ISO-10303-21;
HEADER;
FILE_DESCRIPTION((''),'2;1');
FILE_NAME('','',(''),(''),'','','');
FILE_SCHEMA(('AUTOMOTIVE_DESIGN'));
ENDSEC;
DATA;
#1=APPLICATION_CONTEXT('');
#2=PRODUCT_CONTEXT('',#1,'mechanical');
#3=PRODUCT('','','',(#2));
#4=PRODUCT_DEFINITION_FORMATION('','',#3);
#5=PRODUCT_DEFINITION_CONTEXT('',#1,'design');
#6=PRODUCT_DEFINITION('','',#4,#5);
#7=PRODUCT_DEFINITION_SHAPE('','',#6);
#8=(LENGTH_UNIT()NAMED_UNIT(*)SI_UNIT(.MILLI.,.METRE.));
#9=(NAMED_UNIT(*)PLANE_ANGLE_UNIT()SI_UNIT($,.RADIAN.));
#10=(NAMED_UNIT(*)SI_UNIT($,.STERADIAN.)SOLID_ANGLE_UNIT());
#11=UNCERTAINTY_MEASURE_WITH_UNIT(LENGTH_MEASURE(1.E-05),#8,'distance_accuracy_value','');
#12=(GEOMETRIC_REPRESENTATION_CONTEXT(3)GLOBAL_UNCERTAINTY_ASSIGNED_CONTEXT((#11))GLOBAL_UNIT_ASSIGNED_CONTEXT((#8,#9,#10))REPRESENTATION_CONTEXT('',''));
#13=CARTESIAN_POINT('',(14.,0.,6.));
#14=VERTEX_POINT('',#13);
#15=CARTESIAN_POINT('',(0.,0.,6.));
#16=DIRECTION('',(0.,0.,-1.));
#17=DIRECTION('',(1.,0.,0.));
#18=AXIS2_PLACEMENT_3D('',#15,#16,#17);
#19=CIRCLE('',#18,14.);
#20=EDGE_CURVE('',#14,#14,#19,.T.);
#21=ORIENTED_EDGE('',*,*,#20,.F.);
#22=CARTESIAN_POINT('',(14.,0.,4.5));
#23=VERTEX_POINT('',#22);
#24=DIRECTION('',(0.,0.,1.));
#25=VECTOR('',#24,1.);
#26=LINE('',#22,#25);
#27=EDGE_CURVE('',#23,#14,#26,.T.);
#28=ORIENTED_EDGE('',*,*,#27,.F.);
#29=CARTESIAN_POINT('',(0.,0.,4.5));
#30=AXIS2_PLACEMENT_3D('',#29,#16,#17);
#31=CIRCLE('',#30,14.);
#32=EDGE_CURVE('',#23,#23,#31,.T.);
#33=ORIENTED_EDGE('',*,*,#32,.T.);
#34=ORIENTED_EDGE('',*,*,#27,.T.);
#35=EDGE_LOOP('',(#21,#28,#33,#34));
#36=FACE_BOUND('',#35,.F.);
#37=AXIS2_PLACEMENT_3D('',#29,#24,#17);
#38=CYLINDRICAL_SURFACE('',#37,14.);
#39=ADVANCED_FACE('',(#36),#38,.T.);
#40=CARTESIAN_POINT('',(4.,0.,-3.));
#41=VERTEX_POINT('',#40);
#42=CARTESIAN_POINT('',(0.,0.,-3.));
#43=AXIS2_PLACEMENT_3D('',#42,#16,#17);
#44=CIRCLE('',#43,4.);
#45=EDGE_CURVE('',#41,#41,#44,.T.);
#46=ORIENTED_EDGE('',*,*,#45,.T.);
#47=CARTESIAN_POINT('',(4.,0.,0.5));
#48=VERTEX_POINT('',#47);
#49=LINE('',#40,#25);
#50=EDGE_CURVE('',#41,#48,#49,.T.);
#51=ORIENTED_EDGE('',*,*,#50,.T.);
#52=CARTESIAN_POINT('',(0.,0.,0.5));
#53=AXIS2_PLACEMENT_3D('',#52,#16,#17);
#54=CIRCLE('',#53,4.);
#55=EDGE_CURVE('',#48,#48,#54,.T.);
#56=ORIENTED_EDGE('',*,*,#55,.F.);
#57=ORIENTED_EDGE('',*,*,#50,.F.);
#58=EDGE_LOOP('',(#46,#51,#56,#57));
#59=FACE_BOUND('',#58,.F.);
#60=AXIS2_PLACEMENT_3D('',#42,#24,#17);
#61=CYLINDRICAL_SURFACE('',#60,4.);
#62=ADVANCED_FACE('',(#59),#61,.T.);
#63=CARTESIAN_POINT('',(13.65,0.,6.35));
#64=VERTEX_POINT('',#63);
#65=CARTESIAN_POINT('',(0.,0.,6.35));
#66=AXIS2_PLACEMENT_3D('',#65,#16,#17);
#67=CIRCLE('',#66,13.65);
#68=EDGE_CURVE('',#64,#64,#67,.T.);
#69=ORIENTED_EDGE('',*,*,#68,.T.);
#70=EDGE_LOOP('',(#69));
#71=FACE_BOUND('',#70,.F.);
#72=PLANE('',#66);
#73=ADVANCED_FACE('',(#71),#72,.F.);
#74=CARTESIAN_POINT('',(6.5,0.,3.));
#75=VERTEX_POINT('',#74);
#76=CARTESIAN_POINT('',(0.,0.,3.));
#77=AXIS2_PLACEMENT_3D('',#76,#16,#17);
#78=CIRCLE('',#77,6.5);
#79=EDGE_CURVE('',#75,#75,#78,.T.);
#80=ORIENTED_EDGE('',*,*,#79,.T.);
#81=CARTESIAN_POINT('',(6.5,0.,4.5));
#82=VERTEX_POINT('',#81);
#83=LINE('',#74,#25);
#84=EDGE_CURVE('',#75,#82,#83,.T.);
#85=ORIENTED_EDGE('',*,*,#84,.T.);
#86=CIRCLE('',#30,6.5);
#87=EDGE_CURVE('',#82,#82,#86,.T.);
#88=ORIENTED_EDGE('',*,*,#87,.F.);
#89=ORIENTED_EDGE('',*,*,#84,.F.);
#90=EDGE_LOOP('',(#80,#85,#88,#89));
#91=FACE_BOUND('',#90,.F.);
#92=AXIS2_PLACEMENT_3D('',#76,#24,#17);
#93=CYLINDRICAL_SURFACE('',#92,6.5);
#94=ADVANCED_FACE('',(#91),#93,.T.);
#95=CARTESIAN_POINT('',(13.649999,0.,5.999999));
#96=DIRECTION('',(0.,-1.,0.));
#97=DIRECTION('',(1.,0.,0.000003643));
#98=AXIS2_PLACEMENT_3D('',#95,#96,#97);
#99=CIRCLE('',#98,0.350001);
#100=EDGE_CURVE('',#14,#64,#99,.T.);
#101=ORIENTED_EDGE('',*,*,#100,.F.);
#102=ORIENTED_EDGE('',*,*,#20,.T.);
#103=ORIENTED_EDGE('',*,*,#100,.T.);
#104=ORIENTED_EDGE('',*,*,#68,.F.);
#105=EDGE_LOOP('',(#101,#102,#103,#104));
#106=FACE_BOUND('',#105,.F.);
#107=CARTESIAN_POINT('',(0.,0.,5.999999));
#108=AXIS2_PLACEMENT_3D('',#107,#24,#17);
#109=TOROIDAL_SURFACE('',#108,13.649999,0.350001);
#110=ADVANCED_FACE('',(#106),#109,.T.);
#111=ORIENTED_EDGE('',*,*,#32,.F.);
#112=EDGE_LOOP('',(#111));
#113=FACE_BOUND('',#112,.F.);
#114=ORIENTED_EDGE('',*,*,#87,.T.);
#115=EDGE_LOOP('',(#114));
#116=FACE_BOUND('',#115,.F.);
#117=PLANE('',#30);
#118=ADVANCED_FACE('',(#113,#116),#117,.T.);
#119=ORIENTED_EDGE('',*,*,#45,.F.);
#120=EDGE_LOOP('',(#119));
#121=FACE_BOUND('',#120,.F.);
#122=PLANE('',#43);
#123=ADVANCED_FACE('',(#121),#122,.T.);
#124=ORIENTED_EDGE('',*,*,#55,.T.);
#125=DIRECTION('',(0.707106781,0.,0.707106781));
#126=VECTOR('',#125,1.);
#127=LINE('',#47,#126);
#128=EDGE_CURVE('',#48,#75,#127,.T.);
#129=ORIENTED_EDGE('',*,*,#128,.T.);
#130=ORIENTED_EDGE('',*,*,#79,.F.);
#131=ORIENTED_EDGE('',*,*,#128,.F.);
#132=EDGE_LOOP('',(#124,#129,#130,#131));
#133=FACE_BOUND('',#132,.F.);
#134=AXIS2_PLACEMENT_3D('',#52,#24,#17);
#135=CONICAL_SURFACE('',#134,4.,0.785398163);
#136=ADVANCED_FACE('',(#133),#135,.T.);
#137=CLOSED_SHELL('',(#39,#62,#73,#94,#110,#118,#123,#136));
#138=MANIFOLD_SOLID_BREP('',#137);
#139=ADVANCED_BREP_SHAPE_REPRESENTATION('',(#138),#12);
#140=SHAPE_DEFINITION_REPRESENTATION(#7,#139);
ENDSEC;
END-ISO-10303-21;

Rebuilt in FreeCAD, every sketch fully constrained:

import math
import FreeCAD as App
import Part
import Sketcher
from FreeCAD import Vector
Q = App.Units.Quantity

doc = App.newDocument("Part")
body = doc.addObject("PartDesign::Body", "Body")

# Sketch on XZ plane
sketch1 = body.newObject("Sketcher::SketchObject", "Sketch")
sketch1.AttachmentSupport = (doc.getObject("XZ_Plane"), [""])
sketch1.MapMode = "FlatFace"
sketch1.addGeometry(Part.LineSegment(Vector(4, -3, 0), Vector(4, 0.5, 0)), False)
sketch1.addGeometry(Part.LineSegment(Vector(4, 0.5, 0), Vector(6.5, 3, 0)), False)
sketch1.addGeometry(Part.LineSegment(Vector(6.5, 3, 0), Vector(6.5, 4.5, 0)), False)
sketch1.addGeometry(Part.LineSegment(Vector(6.5, 4.5, 0), Vector(14, 4.5, 0)), False)
sketch1.addGeometry(Part.LineSegment(Vector(14, 4.5, 0), Vector(14, 6, 0)), False)
sketch1.addGeometry(Part.ArcOfCircle(Part.Circle(Vector(13.65, 6, 0), Vector(0, 0, 1), 0.35), math.radians(0), math.radians(90)), False)
sketch1.addGeometry(Part.LineSegment(Vector(13.65, 6.35, 0), Vector(0, 6.35, 0)), False)
sketch1.addGeometry(Part.LineSegment(Vector(0, 6.35, 0), Vector(0, -3, 0)), False)
sketch1.addGeometry(Part.LineSegment(Vector(0, -3, 0), Vector(4, -3, 0)), False)
sketch1.addConstraint(Sketcher.Constraint("Coincident", 0, 2, 1, 1))
sketch1.addConstraint(Sketcher.Constraint("Coincident", 1, 2, 2, 1))
sketch1.addConstraint(Sketcher.Constraint("Coincident", 2, 2, 3, 1))
sketch1.addConstraint(Sketcher.Constraint("Coincident", 3, 2, 4, 1))
sketch1.addConstraint(Sketcher.Constraint("Coincident", 4, 2, 5, 1))
sketch1.addConstraint(Sketcher.Constraint("Coincident", 5, 2, 6, 1))
sketch1.addConstraint(Sketcher.Constraint("Coincident", 6, 2, 7, 1))
sketch1.addConstraint(Sketcher.Constraint("Coincident", 7, 2, 8, 1))
sketch1.addConstraint(Sketcher.Constraint("Coincident", 8, 2, 0, 1))
sketch1.addConstraint(Sketcher.Constraint("Vertical", 0))
sketch1.addConstraint(Sketcher.Constraint("Vertical", 2))
sketch1.addConstraint(Sketcher.Constraint("Horizontal", 3))
sketch1.addConstraint(Sketcher.Constraint("Vertical", 4))
sketch1.addConstraint(Sketcher.Constraint("Horizontal", 6))
sketch1.addConstraint(Sketcher.Constraint("Vertical", 7))
sketch1.addConstraint(Sketcher.Constraint("Horizontal", 8))
sketch1.addConstraint(Sketcher.Constraint("PointOnObject", 6, 2, -2))
sketch1.addConstraint(Sketcher.Constraint("Horizontal", 5, 3, 4, 2))
sketch1.addConstraint(Sketcher.Constraint("Equal", 2, 4))
sketch1.addConstraint(Sketcher.Constraint("DistanceX", 8, 1, 8, 2, 4.0))
sketch1.addConstraint(Sketcher.Constraint("Angle", 1, Q("45 deg")))
sketch1.addConstraint(Sketcher.Constraint("Radius", 5, 0.350001))
sketch1.addConstraint(Sketcher.Constraint("DistanceX", 3, 1, 3, 2, 7.5))
sketch1.addConstraint(Sketcher.Constraint("DistanceY", 0, 1, 0, 2, 3.5))
sketch1.addConstraint(Sketcher.Constraint("DistanceY", 2, 1, 2, 2, 1.5))
sketch1.addConstraint(Sketcher.Constraint("DistanceY", -1, 1, 5, 3, 5.999999))
sketch1.addConstraint(Sketcher.Constraint("DistanceX", -1, 1, 3, 2, 14.0))
sketch1.addConstraint(Sketcher.Constraint("DistanceX", 6, 2, 6, 1, 13.65))
revolution = body.newObject("PartDesign::Revolution", "Revolution")
revolution.Profile = sketch1
revolution.ReferenceAxis = (sketch1, ["V_Axis"])
revolution.Angle = 360

doc.recompute()
